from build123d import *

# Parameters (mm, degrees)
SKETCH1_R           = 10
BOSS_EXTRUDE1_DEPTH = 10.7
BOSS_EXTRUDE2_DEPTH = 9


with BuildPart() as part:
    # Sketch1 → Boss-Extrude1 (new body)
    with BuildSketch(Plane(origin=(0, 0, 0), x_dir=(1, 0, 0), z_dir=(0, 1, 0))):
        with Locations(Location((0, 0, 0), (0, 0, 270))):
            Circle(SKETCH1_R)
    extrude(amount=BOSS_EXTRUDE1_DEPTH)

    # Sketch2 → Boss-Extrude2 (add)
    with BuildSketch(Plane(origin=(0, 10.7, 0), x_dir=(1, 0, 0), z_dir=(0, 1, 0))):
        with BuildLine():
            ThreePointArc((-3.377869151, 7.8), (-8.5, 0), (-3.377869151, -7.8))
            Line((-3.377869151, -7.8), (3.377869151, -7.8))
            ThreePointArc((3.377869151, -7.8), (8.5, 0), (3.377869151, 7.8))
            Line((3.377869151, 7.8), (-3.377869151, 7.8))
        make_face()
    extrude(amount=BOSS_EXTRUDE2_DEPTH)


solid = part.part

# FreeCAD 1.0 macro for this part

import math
import FreeCAD as App
import Part
import Sketcher

V = App.Vector

doc = App.newDocument("Part")
body = doc.addObject("PartDesign::Body", "Body")

# Sketch on XZ plane
sketch1 = body.newObject("Sketcher::SketchObject", "Sketch")
sketch1.AttachmentSupport = (doc.getObject("XZ_Plane"), [""])
sketch1.MapMode = "FlatFace"
sketch1.addGeometry(Part.Circle(V(0, 0, 0), V(0, 0, 1), 10), False)
sketch1.addConstraint(Sketcher.Constraint("Coincident", 0, 3, -1, 1))
sketch1.addConstraint(Sketcher.Constraint("Diameter", 0, 20.0))
pad1 = body.newObject("PartDesign::Pad", "Pad")
pad1.Profile = sketch1
pad1.Length = 10.7
pad1.Reversed = True

# Sketch on XZ plane
sketch2 = body.newObject("Sketcher::SketchObject", "Sketch001")
sketch2.AttachmentSupport = (doc.getObject("XZ_Plane"), [""])
sketch2.MapMode = "FlatFace"
sketch2.AttachmentOffset = App.Placement(V(0, 0, -10.7), App.Rotation())
sketch2.addGeometry(Part.ArcOfCircle(Part.Circle(V(0, 0, 0), V(0, 0, 1), 8), math.radians(113), math.radians(247)), False)
sketch2.addGeometry(Part.LineSegment(V(-3, 8, 0), V(3, 8, 0)), False)
sketch2.addGeometry(Part.ArcOfCircle(Part.Circle(V(0, 0, 0), V(0, 0, 1), 8), math.radians(-67), math.radians(67)), False)
sketch2.addGeometry(Part.LineSegment(V(3, -8, 0), V(-3, -8, 0)), False)
sketch2.addConstraint(Sketcher.Constraint("Coincident", 0, 1, 1, 1))
sketch2.addConstraint(Sketcher.Constraint("Coincident", 1, 2, 2, 2))
sketch2.addConstraint(Sketcher.Constraint("Coincident", 2, 1, 3, 1))
sketch2.addConstraint(Sketcher.Constraint("Coincident", 3, 2, 0, 2))
sketch2.addConstraint(Sketcher.Constraint("Horizontal", 1))
sketch2.addConstraint(Sketcher.Constraint("Horizontal", 3))
sketch2.addConstraint(Sketcher.Constraint("Coincident", 0, 3, -1, 1))
sketch2.addConstraint(Sketcher.Constraint("Coincident", 2, 3, -1, 1))
sketch2.addConstraint(Sketcher.Constraint("Equal", 0, 2))
sketch2.addConstraint(Sketcher.Constraint("Vertical", 1, 2, 2, 1))
sketch2.addConstraint(Sketcher.Constraint("Radius", 0, 8.5))
sketch2.addConstraint(Sketcher.Constraint("DistanceY", -1, 1, 0, 1, 7.8))
pad2 = body.newObject("PartDesign::Pad", "Pad001")
pad2.Profile = sketch2
pad2.Length = 9
pad2.Reversed = True

doc.recompute()
